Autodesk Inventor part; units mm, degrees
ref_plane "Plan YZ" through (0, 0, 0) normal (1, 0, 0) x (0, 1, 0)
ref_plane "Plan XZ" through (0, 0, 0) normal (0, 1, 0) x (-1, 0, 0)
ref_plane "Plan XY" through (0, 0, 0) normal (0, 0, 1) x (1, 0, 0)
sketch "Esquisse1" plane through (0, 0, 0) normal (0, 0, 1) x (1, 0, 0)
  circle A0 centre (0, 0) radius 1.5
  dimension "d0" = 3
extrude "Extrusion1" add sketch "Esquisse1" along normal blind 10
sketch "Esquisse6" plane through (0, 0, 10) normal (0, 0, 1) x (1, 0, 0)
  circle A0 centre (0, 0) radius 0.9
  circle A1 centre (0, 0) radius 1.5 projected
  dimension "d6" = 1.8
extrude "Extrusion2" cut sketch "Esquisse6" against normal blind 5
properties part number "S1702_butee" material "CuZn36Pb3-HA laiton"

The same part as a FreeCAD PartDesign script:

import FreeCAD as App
import Part
import Sketcher
from FreeCAD import Vector
Q = App.Units.Quantity

doc = App.newDocument("Part")
body = doc.addObject("PartDesign::Body", "Body")

# Sketch on XY plane
sketch1 = body.newObject("Sketcher::SketchObject", "Sketch")
sketch1.AttachmentSupport = (doc.getObject("XY_Plane"), [""])
sketch1.MapMode = "FlatFace"
sketch1.addGeometry(Part.Circle(Vector(0, 0, 0), Vector(0, 0, 1), 1.5), False)
sketch1.addConstraint([
    Sketcher.Constraint("Coincident", 0, 3, -1, 1),
    Sketcher.Constraint("Diameter", 0, Q("3 mm")),
])
pad1 = body.newObject("PartDesign::Pad", "Pad")
pad1.Profile = sketch1
pad1.Length = 10

# Sketch on XY plane
sketch2 = body.newObject("Sketcher::SketchObject", "Sketch001")
sketch2.AttachmentSupport = (doc.getObject("XY_Plane"), [""])
sketch2.MapMode = "FlatFace"
sketch2.AttachmentOffset = App.Placement(Vector(0, 0, 10), App.Rotation())
sketch2.addGeometry([
    Part.Circle(Vector(0, 0, 0), Vector(0, 0, 1), 1.5),
    Part.Circle(Vector(0, 0, 0), Vector(0, 0, 1), 0.9),
], False)
sketch2.addConstraint([
    Sketcher.Constraint("Coincident", 0, 3, -1, 1),
    Sketcher.Constraint("Coincident", 1, 3, -1, 1),
    Sketcher.Constraint("Diameter", 1, Q("1.8 mm")),
    Sketcher.Constraint("Diameter", 0, Q("3 mm")),
])
pocket1 = body.newObject("PartDesign::Pocket", "Pocket")
pocket1.Profile = sketch2
pocket1.Length = 5

doc.recompute()
